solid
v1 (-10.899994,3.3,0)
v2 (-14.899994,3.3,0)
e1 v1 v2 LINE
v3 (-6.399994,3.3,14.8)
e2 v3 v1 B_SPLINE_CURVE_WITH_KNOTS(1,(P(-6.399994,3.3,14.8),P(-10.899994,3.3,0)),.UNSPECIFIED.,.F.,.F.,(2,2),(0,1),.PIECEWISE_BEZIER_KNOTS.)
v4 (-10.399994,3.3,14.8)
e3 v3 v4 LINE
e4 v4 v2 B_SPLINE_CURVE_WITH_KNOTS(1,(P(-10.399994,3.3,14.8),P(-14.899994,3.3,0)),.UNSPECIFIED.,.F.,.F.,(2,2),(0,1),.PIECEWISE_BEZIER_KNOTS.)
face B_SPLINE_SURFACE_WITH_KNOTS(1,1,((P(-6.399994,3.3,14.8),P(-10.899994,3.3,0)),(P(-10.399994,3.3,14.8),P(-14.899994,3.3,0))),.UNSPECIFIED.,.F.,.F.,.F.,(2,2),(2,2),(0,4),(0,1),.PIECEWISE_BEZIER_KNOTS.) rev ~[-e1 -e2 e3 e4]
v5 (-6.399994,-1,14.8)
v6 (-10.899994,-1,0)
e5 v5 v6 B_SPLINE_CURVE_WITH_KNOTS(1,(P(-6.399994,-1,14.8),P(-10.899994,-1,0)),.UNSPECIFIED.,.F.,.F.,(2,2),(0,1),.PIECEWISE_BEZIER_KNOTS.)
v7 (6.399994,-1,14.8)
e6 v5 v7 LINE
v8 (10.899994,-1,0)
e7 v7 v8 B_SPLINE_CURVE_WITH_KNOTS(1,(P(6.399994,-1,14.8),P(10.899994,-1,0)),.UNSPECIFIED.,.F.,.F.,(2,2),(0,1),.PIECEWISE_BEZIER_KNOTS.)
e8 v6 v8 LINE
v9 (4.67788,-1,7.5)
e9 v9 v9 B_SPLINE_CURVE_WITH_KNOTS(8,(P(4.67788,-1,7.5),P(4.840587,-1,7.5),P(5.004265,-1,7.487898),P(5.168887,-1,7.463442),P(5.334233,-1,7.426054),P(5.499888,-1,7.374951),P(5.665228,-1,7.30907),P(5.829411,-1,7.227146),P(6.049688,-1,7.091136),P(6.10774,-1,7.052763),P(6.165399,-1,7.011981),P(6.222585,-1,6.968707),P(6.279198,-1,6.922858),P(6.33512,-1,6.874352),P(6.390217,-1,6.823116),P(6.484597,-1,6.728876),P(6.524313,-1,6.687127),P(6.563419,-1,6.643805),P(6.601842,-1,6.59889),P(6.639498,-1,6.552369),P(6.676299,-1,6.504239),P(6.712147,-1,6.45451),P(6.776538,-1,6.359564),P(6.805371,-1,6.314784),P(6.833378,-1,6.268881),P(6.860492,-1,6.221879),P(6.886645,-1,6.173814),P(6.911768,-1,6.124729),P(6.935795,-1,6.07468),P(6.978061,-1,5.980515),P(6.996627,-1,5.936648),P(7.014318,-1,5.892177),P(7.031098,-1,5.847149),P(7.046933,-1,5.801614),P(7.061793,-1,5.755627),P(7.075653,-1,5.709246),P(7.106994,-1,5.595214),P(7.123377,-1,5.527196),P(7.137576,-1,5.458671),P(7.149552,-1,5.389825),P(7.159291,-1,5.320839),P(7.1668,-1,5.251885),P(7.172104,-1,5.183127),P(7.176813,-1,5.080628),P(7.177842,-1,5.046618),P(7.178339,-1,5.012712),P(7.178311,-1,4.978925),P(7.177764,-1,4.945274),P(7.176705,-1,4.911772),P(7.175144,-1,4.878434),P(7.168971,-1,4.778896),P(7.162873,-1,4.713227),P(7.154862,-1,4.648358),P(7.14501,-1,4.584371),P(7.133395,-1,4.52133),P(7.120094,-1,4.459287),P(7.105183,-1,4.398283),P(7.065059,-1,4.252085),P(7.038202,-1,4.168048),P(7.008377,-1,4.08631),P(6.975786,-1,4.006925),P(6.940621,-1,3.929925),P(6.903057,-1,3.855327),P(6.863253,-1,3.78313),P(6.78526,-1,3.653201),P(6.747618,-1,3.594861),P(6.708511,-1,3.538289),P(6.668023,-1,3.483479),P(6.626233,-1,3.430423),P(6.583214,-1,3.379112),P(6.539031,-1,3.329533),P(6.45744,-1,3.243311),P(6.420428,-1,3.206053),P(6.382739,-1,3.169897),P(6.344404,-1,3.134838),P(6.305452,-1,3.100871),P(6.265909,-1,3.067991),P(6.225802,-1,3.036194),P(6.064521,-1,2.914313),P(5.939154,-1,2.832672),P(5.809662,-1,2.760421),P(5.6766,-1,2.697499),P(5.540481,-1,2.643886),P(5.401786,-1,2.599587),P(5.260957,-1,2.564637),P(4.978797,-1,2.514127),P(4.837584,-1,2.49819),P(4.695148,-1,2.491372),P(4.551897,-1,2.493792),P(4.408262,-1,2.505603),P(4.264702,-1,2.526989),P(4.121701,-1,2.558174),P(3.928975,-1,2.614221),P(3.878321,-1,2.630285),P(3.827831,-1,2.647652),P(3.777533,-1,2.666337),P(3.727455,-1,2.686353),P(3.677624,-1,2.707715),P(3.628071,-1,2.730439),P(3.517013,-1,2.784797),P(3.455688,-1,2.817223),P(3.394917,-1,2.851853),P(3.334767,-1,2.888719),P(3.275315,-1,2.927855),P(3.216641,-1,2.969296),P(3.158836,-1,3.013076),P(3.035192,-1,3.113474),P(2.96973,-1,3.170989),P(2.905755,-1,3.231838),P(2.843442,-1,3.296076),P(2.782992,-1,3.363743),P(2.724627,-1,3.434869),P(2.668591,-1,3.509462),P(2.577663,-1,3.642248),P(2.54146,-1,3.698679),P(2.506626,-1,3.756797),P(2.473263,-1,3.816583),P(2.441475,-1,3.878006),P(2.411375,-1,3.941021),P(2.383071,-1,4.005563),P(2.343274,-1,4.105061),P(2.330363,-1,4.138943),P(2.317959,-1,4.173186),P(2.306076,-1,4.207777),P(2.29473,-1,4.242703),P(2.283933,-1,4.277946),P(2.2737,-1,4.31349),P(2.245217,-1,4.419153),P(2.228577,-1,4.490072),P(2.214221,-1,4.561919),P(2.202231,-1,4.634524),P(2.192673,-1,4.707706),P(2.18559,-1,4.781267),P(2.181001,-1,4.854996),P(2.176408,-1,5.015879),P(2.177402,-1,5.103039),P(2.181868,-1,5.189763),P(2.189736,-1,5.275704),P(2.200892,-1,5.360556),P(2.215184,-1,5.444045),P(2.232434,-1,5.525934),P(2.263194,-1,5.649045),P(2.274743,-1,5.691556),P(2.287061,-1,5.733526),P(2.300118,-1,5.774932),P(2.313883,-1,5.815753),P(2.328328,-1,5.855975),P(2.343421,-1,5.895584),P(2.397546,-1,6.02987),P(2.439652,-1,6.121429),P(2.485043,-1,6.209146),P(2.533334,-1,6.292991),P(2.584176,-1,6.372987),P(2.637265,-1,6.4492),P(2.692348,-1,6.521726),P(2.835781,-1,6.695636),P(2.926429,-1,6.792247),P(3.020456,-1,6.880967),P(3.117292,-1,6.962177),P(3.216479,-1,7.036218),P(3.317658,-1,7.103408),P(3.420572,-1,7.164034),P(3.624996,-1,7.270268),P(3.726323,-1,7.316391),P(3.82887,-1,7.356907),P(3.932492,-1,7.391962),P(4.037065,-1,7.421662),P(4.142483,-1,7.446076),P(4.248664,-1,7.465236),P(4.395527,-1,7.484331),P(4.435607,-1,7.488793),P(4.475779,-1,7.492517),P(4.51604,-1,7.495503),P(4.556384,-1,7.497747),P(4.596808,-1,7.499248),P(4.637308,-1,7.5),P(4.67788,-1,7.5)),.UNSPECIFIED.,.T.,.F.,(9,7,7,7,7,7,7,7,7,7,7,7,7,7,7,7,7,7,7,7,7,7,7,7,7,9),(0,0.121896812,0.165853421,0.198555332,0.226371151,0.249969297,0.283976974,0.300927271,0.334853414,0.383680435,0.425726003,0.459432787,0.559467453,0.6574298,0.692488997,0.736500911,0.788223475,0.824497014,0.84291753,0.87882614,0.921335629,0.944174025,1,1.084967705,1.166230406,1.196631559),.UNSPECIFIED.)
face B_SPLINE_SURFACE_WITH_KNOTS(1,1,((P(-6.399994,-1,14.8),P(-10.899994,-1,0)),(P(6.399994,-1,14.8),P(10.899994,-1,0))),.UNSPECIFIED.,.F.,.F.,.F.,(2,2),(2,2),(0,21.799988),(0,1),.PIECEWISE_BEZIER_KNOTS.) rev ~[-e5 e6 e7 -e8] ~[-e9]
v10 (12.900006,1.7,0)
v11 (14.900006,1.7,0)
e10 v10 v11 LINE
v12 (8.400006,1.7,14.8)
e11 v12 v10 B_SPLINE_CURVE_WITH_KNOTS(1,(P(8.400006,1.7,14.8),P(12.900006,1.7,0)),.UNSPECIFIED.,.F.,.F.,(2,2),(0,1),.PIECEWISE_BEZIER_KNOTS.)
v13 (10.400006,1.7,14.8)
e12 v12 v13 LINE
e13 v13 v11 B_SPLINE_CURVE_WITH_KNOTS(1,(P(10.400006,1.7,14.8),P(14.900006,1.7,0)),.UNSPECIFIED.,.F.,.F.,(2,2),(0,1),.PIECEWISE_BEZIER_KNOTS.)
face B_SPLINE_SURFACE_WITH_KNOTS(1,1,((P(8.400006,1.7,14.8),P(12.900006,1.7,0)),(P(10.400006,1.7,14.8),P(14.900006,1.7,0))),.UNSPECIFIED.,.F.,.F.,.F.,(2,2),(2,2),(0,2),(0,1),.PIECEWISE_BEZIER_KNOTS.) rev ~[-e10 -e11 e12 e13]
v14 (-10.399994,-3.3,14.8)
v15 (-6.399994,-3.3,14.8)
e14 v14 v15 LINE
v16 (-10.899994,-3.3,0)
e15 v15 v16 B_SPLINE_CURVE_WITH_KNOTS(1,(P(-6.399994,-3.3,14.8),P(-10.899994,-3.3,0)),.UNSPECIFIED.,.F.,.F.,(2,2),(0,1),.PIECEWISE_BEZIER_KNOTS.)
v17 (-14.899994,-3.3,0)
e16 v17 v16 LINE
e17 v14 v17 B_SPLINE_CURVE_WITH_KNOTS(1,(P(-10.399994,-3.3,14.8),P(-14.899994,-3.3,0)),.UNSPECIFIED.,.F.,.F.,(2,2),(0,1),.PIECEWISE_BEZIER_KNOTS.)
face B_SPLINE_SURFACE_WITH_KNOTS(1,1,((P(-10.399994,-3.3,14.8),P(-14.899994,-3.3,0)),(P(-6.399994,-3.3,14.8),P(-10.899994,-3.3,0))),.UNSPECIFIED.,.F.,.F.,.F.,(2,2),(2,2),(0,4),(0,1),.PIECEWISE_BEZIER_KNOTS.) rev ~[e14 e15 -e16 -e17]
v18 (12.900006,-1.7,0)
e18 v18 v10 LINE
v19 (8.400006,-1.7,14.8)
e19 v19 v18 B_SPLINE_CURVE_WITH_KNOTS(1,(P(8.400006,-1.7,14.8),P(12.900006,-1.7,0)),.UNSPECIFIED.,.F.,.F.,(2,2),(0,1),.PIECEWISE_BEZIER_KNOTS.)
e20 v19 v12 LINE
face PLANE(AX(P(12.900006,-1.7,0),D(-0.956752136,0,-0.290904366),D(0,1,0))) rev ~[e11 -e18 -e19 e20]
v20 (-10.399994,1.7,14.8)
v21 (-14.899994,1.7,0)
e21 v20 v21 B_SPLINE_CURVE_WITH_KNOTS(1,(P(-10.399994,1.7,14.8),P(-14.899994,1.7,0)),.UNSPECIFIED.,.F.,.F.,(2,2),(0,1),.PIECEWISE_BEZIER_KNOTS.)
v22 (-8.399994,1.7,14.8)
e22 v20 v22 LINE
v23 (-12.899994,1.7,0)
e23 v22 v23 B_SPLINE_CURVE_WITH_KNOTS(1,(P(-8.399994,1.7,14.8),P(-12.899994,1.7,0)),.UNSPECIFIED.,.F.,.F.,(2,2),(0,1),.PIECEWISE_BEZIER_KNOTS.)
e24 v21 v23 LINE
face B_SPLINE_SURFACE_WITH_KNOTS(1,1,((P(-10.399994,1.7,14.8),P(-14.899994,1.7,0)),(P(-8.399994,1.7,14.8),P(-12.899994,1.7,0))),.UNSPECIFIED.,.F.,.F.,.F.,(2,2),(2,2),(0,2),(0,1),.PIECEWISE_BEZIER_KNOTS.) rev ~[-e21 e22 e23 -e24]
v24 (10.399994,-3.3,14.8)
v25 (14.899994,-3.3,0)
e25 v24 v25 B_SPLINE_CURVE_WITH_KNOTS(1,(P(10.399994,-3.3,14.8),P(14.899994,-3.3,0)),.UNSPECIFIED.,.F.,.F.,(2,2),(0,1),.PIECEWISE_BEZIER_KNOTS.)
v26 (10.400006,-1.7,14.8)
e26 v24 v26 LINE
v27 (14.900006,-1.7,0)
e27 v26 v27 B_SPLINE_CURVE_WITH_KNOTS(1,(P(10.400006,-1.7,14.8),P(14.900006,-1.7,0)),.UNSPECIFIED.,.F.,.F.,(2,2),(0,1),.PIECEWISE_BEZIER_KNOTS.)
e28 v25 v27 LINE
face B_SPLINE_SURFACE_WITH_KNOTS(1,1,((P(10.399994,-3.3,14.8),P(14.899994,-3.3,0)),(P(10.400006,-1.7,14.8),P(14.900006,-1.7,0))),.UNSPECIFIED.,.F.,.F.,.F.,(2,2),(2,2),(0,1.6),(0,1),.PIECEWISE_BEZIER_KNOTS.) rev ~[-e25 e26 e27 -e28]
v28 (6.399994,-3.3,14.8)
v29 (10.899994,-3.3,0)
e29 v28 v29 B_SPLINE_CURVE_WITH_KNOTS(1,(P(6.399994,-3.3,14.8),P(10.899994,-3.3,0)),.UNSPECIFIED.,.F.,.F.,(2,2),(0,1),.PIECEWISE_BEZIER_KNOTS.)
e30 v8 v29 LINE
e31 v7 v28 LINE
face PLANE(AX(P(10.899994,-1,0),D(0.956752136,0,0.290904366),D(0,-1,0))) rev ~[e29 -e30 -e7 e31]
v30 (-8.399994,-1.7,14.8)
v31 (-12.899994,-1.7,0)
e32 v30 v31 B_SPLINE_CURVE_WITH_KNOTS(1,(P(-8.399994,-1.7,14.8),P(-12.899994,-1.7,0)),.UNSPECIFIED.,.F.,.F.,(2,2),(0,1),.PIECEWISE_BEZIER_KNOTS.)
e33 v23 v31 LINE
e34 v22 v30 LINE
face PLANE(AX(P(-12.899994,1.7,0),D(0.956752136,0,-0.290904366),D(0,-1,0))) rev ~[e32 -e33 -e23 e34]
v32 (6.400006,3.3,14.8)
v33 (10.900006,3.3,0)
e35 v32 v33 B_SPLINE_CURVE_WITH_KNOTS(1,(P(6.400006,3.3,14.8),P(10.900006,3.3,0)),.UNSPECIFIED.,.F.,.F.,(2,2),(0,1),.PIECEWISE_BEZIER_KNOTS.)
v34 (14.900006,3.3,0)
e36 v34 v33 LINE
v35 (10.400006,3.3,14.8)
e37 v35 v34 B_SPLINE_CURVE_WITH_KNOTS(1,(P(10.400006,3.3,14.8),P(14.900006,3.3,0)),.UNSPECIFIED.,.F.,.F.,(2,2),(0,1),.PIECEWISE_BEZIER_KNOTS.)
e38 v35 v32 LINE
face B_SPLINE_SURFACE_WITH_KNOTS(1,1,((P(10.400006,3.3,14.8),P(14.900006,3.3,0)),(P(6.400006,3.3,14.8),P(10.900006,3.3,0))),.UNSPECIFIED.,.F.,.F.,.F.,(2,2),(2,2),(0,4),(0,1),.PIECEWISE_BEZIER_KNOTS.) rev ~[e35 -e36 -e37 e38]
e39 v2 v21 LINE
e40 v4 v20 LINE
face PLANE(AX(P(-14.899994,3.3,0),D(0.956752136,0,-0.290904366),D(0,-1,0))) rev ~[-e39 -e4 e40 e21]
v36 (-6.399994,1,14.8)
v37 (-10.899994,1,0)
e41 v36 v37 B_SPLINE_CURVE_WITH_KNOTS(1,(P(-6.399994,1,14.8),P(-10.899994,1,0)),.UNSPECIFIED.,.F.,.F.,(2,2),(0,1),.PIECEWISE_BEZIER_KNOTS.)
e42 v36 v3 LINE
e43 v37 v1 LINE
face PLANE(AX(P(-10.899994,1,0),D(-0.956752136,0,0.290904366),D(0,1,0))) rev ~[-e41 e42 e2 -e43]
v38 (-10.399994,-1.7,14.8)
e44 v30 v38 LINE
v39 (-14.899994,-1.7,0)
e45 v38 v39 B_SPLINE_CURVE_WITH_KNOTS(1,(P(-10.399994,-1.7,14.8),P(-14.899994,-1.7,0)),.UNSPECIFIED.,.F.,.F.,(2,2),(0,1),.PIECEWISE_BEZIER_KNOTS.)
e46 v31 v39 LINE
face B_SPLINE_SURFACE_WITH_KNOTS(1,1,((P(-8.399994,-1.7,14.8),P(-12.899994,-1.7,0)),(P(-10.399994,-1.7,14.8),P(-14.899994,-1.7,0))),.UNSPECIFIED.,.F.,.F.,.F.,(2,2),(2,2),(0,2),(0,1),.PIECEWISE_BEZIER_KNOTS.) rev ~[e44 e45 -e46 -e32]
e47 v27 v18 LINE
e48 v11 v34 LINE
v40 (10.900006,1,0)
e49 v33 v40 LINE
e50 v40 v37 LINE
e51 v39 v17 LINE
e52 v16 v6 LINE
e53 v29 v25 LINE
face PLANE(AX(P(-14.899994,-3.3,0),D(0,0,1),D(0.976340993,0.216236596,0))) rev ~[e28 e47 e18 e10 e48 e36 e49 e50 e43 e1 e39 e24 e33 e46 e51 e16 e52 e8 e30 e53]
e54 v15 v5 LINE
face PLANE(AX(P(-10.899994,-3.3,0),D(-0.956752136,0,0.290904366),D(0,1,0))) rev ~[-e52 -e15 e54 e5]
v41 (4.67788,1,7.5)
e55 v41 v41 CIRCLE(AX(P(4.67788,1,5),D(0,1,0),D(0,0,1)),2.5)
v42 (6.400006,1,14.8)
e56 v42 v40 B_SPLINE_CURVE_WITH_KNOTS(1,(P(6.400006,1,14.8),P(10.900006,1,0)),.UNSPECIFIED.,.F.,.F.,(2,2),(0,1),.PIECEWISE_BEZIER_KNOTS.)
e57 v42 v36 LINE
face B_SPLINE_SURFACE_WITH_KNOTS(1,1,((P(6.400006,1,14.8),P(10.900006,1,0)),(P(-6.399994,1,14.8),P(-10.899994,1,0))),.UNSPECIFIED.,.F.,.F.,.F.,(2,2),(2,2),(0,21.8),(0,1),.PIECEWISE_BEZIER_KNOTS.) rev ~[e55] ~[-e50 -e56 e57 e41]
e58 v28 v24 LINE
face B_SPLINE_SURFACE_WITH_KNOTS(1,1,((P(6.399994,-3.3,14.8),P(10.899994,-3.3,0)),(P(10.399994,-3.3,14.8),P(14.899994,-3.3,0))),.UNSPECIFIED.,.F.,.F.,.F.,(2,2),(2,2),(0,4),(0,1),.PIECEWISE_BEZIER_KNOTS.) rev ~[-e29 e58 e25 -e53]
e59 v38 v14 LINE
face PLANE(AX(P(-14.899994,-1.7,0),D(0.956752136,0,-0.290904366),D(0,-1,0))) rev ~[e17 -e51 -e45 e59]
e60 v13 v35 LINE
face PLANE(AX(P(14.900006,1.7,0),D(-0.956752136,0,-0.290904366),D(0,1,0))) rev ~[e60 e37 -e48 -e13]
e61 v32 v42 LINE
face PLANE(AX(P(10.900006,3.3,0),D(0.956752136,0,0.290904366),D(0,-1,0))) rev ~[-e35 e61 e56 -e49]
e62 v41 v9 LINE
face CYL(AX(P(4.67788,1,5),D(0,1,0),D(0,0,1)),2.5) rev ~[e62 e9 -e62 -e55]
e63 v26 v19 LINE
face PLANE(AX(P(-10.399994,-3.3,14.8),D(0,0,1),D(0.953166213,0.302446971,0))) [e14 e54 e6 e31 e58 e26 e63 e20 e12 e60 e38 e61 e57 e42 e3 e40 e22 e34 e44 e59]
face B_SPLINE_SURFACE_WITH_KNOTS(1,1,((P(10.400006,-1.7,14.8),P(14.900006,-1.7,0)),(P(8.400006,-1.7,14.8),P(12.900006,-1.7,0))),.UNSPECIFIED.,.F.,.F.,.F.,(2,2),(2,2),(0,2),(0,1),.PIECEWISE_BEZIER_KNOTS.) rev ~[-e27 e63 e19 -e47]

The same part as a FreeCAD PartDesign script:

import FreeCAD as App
import Part
import Sketcher

V = App.Vector
Q = App.Units.Quantity


def add_polygon(sketch, points):
    """Adds a closed chain of lines whose ends are joined by coincident constraints."""
    first, n = sketch.GeometryCount, len(points)
    for a, b in zip(points, points[1:] + points[:1]):
        sketch.addGeometry(Part.LineSegment(App.Vector(*a, 0), App.Vector(*b, 0)), False)
    for i in range(n):
        sketch.addConstraint(Sketcher.Constraint("Coincident", first + i, 2, first + (i + 1) % n, 1))

doc = App.newDocument("Part")
body = doc.addObject("PartDesign::Body", "Body")

# Sketch on XY plane
sketch1 = body.newObject("Sketcher::SketchObject", "Sketch")
sketch1.AttachmentSupport = (doc.getObject("XY_Plane"), [""])
sketch1.MapMode = "FlatFace"
sketch1.AttachmentOffset = App.Placement(V(0, 0, 14.8), App.Rotation())
add_polygon(sketch1, [(-10.4, -3.3), (-6.4, -3.3), (-6.4, -1), (6.4, -1), (6.4, -3.3), (10.4, -3.3), (10.4, -1.7), (8.4, -1.7), (8.4, 1.7), (10.4, 1.7), (10.4, 3.3), (6.4, 3.3), (6.4, 1), (-6.4, 1), (-6.4, 3.3), (-10.4, 3.3), (-10.4, 1.7), (-8.4, 1.7), (-8.4, -1.7), (-10.4, -1.7)])  # lines 0-19
sketch1.addConstraint([
    Sketcher.Constraint("Horizontal", 0),
    Sketcher.Constraint("Vertical", 1),
    Sketcher.Constraint("Horizontal", 2),
    Sketcher.Constraint("Vertical", 3),
    Sketcher.Constraint("Horizontal", 4),
    Sketcher.Constraint("Horizontal", 6),
    Sketcher.Constraint("Vertical", 7),
    Sketcher.Constraint("Horizontal", 8),
    Sketcher.Constraint("Vertical", 9),
    Sketcher.Constraint("Horizontal", 10),
    Sketcher.Constraint("Vertical", 11),
    Sketcher.Constraint("Horizontal", 12),
    Sketcher.Constraint("Vertical", 13),
    Sketcher.Constraint("Horizontal", 14),
    Sketcher.Constraint("Vertical", 15),
    Sketcher.Constraint("Horizontal", 16),
    Sketcher.Constraint("Vertical", 17),
    Sketcher.Constraint("Horizontal", 18),
    Sketcher.Constraint("Vertical", 19),
    Sketcher.Constraint("Symmetric", 2, 2, 12, 2, -1, 1),
    Sketcher.Constraint("Symmetric", 4, 2, 14, 2, -1, 1),
    Sketcher.Constraint("Symmetric", 0, 2, 3, 2, -2),
    Sketcher.Constraint("Symmetric", 5, 2, 8, 2, -1),
    Sketcher.Constraint("Symmetric", 15, 2, 18, 2, -1),
    Sketcher.Constraint("Horizontal", 10, 2, 13, 2),
    Sketcher.Constraint("Horizontal", 8, 2, 15, 2),
    Sketcher.Constraint("Equal", 4, 10),
    Sketcher.Constraint("Equal", 8, 16),
    Sketcher.Constraint("DistanceX", 0, 1, 0, 2, Q("4 mm")),
    Sketcher.Constraint("DistanceX", 6, 2, 6, 1, Q("2 mm")),
    Sketcher.Constraint("DistanceX", 12, 2, 12, 1, Q("12.8 mm")),
    Sketcher.Constraint("DistanceY", 1, 1, 1, 2, Q("2.3 mm")),
    Sketcher.Constraint("DistanceY", 7, 1, 7, 2, Q("3.4 mm")),
    Sketcher.Constraint("DistanceY", 9, 1, 9, 2, Q("1.6 mm")),
    Sketcher.Constraint("DistanceX", 2, 1, 2, 2, Q("12.799988 mm")),
])

# Sketch on XY plane
sketch2 = body.newObject("Sketcher::SketchObject", "Sketch001")
sketch2.AttachmentSupport = (doc.getObject("XY_Plane"), [""])
sketch2.MapMode = "FlatFace"
add_polygon(sketch2, [(-14.9, -3.3), (-10.9, -3.3), (-10.9, -1), (10.9, -1), (10.9, -3.3), (14.9, -3.3), (14.9, -1.7), (12.9, -1.7), (12.9, 1.7), (14.9, 1.7), (14.9, 3.3), (10.9, 3.3), (10.9, 1), (-10.9, 1), (-10.9, 3.3), (-14.9, 3.3), (-14.9, 1.7), (-12.9, 1.7), (-12.9, -1.7), (-14.9, -1.7)])  # lines 0-19
sketch2.addConstraint([
    Sketcher.Constraint("Horizontal", 0),
    Sketcher.Constraint("Vertical", 1),
    Sketcher.Constraint("Horizontal", 2),
    Sketcher.Constraint("Vertical", 3),
    Sketcher.Constraint("Horizontal", 4),
    Sketcher.Constraint("Horizontal", 6),
    Sketcher.Constraint("Vertical", 7),
    Sketcher.Constraint("Horizontal", 8),
    Sketcher.Constraint("Vertical", 9),
    Sketcher.Constraint("Horizontal", 10),
    Sketcher.Constraint("Vertical", 11),
    Sketcher.Constraint("Horizontal", 12),
    Sketcher.Constraint("Vertical", 13),
    Sketcher.Constraint("Horizontal", 14),
    Sketcher.Constraint("Vertical", 15),
    Sketcher.Constraint("Horizontal", 16),
    Sketcher.Constraint("Vertical", 17),
    Sketcher.Constraint("Horizontal", 18),
    Sketcher.Constraint("Vertical", 19),
    Sketcher.Constraint("Symmetric", 2, 2, 12, 2, -1, 1),
    Sketcher.Constraint("Symmetric", 4, 2, 14, 2, -1, 1),
    Sketcher.Constraint("Symmetric", 0, 2, 3, 2, -2),
    Sketcher.Constraint("Symmetric", 5, 2, 8, 2, -1),
    Sketcher.Constraint("Symmetric", 15, 2, 18, 2, -1),
    Sketcher.Constraint("Horizontal", 10, 2, 13, 2),
    Sketcher.Constraint("Horizontal", 8, 2, 15, 2),
    Sketcher.Constraint("Equal", 4, 10),
    Sketcher.Constraint("Equal", 8, 16),
    Sketcher.Constraint("DistanceX", 0, 1, 0, 2, Q("4 mm")),
    Sketcher.Constraint("DistanceX", 6, 2, 6, 1, Q("2 mm")),
    Sketcher.Constraint("DistanceX", 12, 2, 12, 1, Q("21.8 mm")),
    Sketcher.Constraint("DistanceY", 1, 1, 1, 2, Q("2.3 mm")),
    Sketcher.Constraint("DistanceY", 7, 1, 7, 2, Q("3.4 mm")),
    Sketcher.Constraint("DistanceY", 9, 1, 9, 2, Q("1.6 mm")),
    Sketcher.Constraint("DistanceX", 2, 1, 2, 2, Q("21.799988 mm")),
])

additiveloft = body.newObject("PartDesign::AdditiveLoft", "AdditiveLoft")
additiveloft.Profile = sketch1
additiveloft.Sections = [sketch2]

# Sketch on XZ plane
sketch3 = body.newObject("Sketcher::SketchObject", "Sketch002")
sketch3.AttachmentSupport = (doc.getObject("XZ_Plane"), [""])
sketch3.MapMode = "FlatFace"
sketch3.AttachmentOffset = App.Placement(V(0, 0, -1), App.Rotation())
sketch3.addGeometry(Part.Circle(V(4.7, 5, 0), V(0, 0, 1), 2.5), False)
sketch3.addConstraint([
    Sketcher.Constraint("Diameter", 0, Q("5 mm")),
    Sketcher.Constraint("DistanceY", -1, 1, 0, 3, Q("5 mm")),
    Sketcher.Constraint("DistanceX", -1, 1, 0, 3, Q("4.67788 mm")),
])
pocket1 = body.newObject("PartDesign::Pocket", "Pocket")
pocket1.Profile = sketch3
pocket1.Type = "ThroughAll"
pocket1.Reversed = True

doc.recompute()
